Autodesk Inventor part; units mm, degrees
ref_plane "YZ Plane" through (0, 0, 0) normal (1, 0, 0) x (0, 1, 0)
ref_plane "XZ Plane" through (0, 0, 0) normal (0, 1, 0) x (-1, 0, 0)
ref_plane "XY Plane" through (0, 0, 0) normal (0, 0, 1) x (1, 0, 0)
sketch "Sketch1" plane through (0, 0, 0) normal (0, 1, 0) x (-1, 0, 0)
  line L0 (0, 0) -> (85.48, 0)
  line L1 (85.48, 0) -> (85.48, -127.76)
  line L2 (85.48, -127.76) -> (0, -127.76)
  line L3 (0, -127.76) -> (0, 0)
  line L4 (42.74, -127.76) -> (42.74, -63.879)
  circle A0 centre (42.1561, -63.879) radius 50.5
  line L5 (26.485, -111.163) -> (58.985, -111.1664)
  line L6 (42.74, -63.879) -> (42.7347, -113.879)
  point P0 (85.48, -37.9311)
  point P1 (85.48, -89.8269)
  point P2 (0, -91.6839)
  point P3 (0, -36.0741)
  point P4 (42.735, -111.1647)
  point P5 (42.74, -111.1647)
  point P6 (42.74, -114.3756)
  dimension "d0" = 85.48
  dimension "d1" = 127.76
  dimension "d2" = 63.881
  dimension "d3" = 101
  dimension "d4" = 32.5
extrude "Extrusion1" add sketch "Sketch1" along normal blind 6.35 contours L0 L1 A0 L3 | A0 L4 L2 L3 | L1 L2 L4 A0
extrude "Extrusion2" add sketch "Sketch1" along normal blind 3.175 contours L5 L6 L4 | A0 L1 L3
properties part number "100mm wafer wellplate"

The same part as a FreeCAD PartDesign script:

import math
import FreeCAD as App
import Part
import Sketcher

V = App.Vector
Q = App.Units.Quantity

doc = App.newDocument("Part")
body = doc.addObject("PartDesign::Body", "Body")
body.AllowCompound = True

sketch1 = doc.addObject("Sketcher::SketchObject", "Sketch")
body.addObject(sketch1)
sketch1.AttachmentSupport = (doc.XZ_Plane, [""])
sketch1.MapMode = "FlatFace"
sketch1.addGeometry(Part.LineSegment(V(-85, 0, 0), V(0, 0, 0)), False)
sketch1.addGeometry(Part.LineSegment(V(0, 0, 0), V(0, -36, 0)), False)
sketch1.addGeometry(Part.ArcOfCircle(Part.Circle(V(-42, -64, 0), V(0, 0, 1), 50), math.radians(33), math.radians(149)), False)
sketch1.addGeometry(Part.LineSegment(V(-85, -38, 0), V(-85, 0, 0)), False)
sketch1.addGeometry(Part.LineSegment(V(0, -92, 0), V(0, -128, 0)), False)
sketch1.addGeometry(Part.LineSegment(V(0, -128, 0), V(-85, -128, 0)), False)
sketch1.addGeometry(Part.LineSegment(V(-85, -128, 0), V(-85, -90, 0)), False)
sketch1.addGeometry(Part.ArcOfCircle(Part.Circle(V(-42, -64, 0), V(0, 0, 1), 50), math.radians(-149), math.radians(-33)), False)
sketch1.addConstraint(Sketcher.Constraint("Coincident", 0, 2, 1, 1))
sketch1.addConstraint(Sketcher.Constraint("Coincident", 1, 2, 2, 1))
sketch1.addConstraint(Sketcher.Constraint("Coincident", 2, 2, 3, 1))
sketch1.addConstraint(Sketcher.Constraint("Coincident", 3, 2, 0, 1))
sketch1.addConstraint(Sketcher.Constraint("Coincident", 4, 2, 5, 1))
sketch1.addConstraint(Sketcher.Constraint("Coincident", 5, 2, 6, 1))
sketch1.addConstraint(Sketcher.Constraint("Coincident", 6, 2, 7, 1))
sketch1.addConstraint(Sketcher.Constraint("Coincident", 7, 2, 4, 1))
sketch1.addConstraint(Sketcher.Constraint("Horizontal", 0))
sketch1.addConstraint(Sketcher.Constraint("Vertical", 1))
sketch1.addConstraint(Sketcher.Constraint("Vertical", 3))
sketch1.addConstraint(Sketcher.Constraint("Vertical", 4))
sketch1.addConstraint(Sketcher.Constraint("Horizontal", 5))
sketch1.addConstraint(Sketcher.Constraint("Vertical", 6))
sketch1.addConstraint(Sketcher.Constraint("Coincident", 0, 2, -1, 1))
sketch1.addConstraint(Sketcher.Constraint("Coincident", 7, 3, 2, 3))
sketch1.addConstraint(Sketcher.Constraint("Equal", 2, 7))
sketch1.addConstraint(Sketcher.Constraint("PointOnObject", 4, 2, -2))
sketch1.addConstraint(Sketcher.Constraint("Vertical", 3, 2, 5, 2))
sketch1.addConstraint(Sketcher.Constraint("Radius", 2, Q("1.9882 in")))
sketch1.addConstraint(Sketcher.Constraint("DistanceY", 4, 2, 2, 3, Q("2.515 in")))
sketch1.addConstraint(Sketcher.Constraint("DistanceX", 0, 1, 0, 2, Q("85.48 mm")))
sketch1.addConstraint(Sketcher.Constraint("DistanceY", 4, 2, -1, 1, Q("127.76 mm")))
sketch1.addConstraint(Sketcher.Constraint("DistanceY", 1, 2, 1, 1, Q("36.074 mm")))
pad1 = doc.addObject("PartDesign::Pad", "Pad")
body.addObject(pad1)
pad1.Profile = sketch1
pad1.Length = Q("0.25 in")
pad1.Reversed = True

sketch2 = doc.addObject("Sketcher::SketchObject", "Sketch001")
body.addObject(sketch2)
sketch2.AttachmentSupport = (doc.XZ_Plane, [""])
sketch2.MapMode = "FlatFace"
sketch2.addGeometry(Part.ArcOfCircle(Part.Circle(V(-42, -64, 0), V(0, 0, 1), 50), math.radians(33), math.radians(149)), False)
sketch2.addGeometry(Part.LineSegment(V(0, -36, 0), V(0, -92, 0)), False)
sketch2.addGeometry(Part.ArcOfCircle(Part.Circle(V(-42, -64, 0), V(0, 0, 1), 50), math.radians(-91), math.radians(-33)), False)
sketch2.addGeometry(Part.ArcOfCircle(Part.Circle(V(-42, -64, 0), V(0, 0, 1), 50), math.radians(-149), math.radians(-91)), False)
sketch2.addGeometry(Part.LineSegment(V(-85, -90, 0), V(-85, -38, 0)), False)
sketch2.addConstraint(Sketcher.Constraint("Coincident", 0, 1, 1, 1))
sketch2.addConstraint(Sketcher.Constraint("Coincident", 1, 2, 2, 2))
sketch2.addConstraint(Sketcher.Constraint("Tangent", 2, 1, 3, 2))
sketch2.addConstraint(Sketcher.Constraint("Coincident", 3, 1, 4, 1))
sketch2.addConstraint(Sketcher.Constraint("Coincident", 4, 2, 0, 2))
sketch2.addConstraint(Sketcher.Constraint("Vertical", 1))
sketch2.addConstraint(Sketcher.Constraint("Vertical", 4))
sketch2.addConstraint(Sketcher.Constraint("Coincident", 2, 3, 0, 3))
sketch2.addConstraint(Sketcher.Constraint("Equal", 0, 2))
sketch2.addConstraint(Sketcher.Constraint("Equal", 2, 3))
sketch2.addConstraint(Sketcher.Constraint("PointOnObject", 0, 1, -2))
sketch2.addConstraint(Sketcher.Constraint("Radius", 0, Q("1.9882 in")))
sketch2.addConstraint(Sketcher.Constraint("DistanceX", 3, 1, -1, 1, Q("85.48 mm")))
sketch2.addConstraint(Sketcher.Constraint("DistanceX", 2, 1, 0, 3, Q("0.023 in")))
sketch2.addConstraint(Sketcher.Constraint("DistanceY", 1, 2, 1, 1, Q("55.6098 mm")))
sketch2.addConstraint(Sketcher.Constraint("DistanceY", 1, 2, -1, 1, Q("3.6096 in")))
pad2 = doc.addObject("PartDesign::Pad", "Pad001")
body.addObject(pad2)
pad2.Profile = sketch2
pad2.Length = Q("0.125 in")
pad2.Reversed = True

doc.recompute()
